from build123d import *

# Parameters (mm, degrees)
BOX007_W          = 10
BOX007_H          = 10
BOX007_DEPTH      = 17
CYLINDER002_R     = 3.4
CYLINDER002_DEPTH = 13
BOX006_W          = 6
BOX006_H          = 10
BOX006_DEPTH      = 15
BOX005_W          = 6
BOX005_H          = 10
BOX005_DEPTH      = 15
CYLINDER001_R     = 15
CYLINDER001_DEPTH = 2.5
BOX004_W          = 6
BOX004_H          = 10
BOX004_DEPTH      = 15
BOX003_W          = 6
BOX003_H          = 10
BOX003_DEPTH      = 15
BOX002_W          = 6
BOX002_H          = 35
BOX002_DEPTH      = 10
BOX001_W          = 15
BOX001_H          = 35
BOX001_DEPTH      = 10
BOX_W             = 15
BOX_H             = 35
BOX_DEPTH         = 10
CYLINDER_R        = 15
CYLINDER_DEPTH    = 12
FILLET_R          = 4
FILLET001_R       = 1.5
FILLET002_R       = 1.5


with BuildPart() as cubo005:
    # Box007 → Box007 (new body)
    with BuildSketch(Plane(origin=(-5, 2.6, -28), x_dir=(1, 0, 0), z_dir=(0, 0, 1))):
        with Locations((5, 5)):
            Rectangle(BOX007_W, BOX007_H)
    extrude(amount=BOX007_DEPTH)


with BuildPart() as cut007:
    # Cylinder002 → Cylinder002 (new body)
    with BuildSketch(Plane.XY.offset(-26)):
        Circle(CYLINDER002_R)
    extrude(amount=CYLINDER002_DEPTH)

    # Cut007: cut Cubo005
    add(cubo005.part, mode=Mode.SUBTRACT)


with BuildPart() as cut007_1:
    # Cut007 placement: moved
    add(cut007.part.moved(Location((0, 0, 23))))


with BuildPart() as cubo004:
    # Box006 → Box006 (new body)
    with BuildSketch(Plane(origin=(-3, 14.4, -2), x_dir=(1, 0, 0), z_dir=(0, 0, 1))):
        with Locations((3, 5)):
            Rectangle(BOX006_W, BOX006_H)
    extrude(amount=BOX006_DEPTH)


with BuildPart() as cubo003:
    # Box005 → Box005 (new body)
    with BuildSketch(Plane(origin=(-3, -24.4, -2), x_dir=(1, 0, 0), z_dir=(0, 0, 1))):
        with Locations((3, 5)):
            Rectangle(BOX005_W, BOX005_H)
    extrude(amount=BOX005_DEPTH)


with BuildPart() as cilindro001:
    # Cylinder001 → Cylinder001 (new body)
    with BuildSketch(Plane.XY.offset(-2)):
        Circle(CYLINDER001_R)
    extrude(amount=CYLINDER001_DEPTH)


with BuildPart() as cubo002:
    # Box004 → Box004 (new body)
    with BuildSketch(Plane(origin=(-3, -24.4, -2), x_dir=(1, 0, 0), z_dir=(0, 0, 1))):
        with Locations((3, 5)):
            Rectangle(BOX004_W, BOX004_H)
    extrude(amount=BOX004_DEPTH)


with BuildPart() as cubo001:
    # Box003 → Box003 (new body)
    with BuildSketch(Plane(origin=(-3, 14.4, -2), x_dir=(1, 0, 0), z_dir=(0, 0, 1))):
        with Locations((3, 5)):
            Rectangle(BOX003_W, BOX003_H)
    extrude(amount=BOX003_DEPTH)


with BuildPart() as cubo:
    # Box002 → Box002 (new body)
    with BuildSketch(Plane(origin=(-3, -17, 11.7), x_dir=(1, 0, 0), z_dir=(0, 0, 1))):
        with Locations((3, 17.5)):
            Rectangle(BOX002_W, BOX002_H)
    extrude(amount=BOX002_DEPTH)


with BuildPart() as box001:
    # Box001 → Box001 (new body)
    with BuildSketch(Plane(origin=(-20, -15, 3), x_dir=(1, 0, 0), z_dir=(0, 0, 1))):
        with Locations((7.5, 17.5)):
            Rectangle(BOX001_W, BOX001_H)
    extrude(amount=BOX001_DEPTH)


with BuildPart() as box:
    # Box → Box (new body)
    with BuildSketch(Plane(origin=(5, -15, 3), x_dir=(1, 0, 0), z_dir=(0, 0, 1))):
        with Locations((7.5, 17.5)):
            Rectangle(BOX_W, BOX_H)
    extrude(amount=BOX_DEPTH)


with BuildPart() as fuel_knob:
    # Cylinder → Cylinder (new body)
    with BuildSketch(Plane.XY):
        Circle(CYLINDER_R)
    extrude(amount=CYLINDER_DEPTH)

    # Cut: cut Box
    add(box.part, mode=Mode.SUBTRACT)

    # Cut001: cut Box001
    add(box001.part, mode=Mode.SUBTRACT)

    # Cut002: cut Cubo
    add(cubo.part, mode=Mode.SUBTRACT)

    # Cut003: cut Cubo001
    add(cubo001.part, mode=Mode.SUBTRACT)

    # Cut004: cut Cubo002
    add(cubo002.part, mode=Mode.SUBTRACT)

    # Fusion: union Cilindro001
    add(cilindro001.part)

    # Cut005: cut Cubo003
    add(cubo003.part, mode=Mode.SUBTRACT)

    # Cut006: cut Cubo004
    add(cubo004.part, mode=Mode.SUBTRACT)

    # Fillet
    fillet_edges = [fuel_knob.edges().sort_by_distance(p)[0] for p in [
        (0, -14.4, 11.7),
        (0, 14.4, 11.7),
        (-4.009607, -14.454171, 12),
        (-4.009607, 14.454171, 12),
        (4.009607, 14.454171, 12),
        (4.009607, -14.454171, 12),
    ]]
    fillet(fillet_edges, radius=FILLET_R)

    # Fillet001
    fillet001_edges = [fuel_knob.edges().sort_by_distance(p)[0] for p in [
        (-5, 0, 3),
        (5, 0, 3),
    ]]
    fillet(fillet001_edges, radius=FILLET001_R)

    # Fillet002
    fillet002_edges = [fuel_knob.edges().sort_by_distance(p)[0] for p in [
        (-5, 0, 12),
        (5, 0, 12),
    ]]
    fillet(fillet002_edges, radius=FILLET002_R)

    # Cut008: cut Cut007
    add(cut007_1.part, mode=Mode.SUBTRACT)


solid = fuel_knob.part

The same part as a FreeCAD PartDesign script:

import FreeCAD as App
import Part
import Sketcher


def edges_at(feature, points):
    """Names of the edges that pass closest to the given points."""
    edges = feature.Shape.Edges
    near = lambda p: min(range(len(edges)), key=lambda i: edges[i].distToShape(Part.Vertex(*p))[0])
    return sorted({f"Edge{near(p) + 1}" for p in points})


def add_polygon(sketch, points):
    """Adds a closed chain of lines whose ends are joined by coincident constraints."""
    first, n = sketch.GeometryCount, len(points)
    for a, b in zip(points, points[1:] + points[:1]):
        sketch.addGeometry(Part.LineSegment(App.Vector(*a, 0), App.Vector(*b, 0)), False)
    for i in range(n):
        sketch.addConstraint(Sketcher.Constraint("Coincident", first + i, 2, first + (i + 1) % n, 1))

doc = App.newDocument("Part")
body = doc.addObject("PartDesign::Body", "Body")

sketch1 = body.newObject("Sketcher::SketchObject", "Sketch")
sketch1.AttachmentSupport = (doc.getObject("XY_Plane"), [""])
sketch1.MapMode = "FlatFace"
sketch1.AttachmentOffset = App.Placement(App.Vector(0, 0, -28), App.Rotation())
add_polygon(sketch1, [(-5, 13), (-5, 3), (5, 3), (5, 13)])
sketch1.addConstraint([
    Sketcher.Constraint("Vertical", 0),
    Sketcher.Constraint("Horizontal", 1),
    Sketcher.Constraint("Vertical", 2),
    Sketcher.Constraint("Horizontal", 3),
    Sketcher.Constraint("Equal", 3, 0),
    Sketcher.Constraint("DistanceX", 1, 1, 1, 2, 10.0),
    Sketcher.Constraint("DistanceX", 0, 2, -1, 1, 5.0),
    Sketcher.Constraint("DistanceY", -1, 1, 0, 2, 2.6),
])
pad1 = body.newObject("PartDesign::Pad", "Pad")
pad1.Profile = sketch1
pad1.Length = 17
body2 = doc.addObject("PartDesign::Body", "Body001")

sketch2 = body2.newObject("Sketcher::SketchObject", "Sketch001")
sketch2.AttachmentSupport = (doc.getObject("XY_Plane001"), [""])
sketch2.MapMode = "FlatFace"
sketch2.AttachmentOffset = App.Placement(App.Vector(0, 0, -26), App.Rotation())
sketch2.addGeometry(Part.Circle(App.Vector(0, 0, 0), App.Vector(0, 0, 1), 3.4), False)
sketch2.addConstraint([
    Sketcher.Constraint("Coincident", 0, 3, -1, 1),
    Sketcher.Constraint("Diameter", 0, 6.8),
])
pad2 = body2.newObject("PartDesign::Pad", "Pad001")
pad2.Profile = sketch2
pad2.Length = 13
doc.recompute()

boolean = body2.newObject("PartDesign::Boolean", "Boolean")
boolean.Type = "Cut"
boolean.addObjects([body])
body3 = doc.addObject("PartDesign::Body", "Body002")
doc.recompute()

body2.Placement = App.Placement(App.Vector(0, 0, 23), App.Rotation(App.Vector(0, 0, 1), 0))
boolean2 = body3.newObject("PartDesign::Boolean", "Boolean001")
boolean2.Type = "Fuse"
boolean2.addObjects([body2])
body4 = doc.addObject("PartDesign::Body", "Body003")

sketch3 = body4.newObject("Sketcher::SketchObject", "Sketch002")
sketch3.AttachmentSupport = (doc.getObject("XY_Plane003"), [""])
sketch3.MapMode = "FlatFace"
sketch3.AttachmentOffset = App.Placement(App.Vector(0, 0, -2), App.Rotation())
add_polygon(sketch3, [(-3, 24), (-3, 14), (3, 14), (3, 24)])
sketch3.addConstraint([
    Sketcher.Constraint("Vertical", 0),
    Sketcher.Constraint("Horizontal", 1),
    Sketcher.Constraint("Vertical", 2),
    Sketcher.Constraint("Horizontal", 3),
    Sketcher.Constraint("DistanceX", 1, 1, 1, 2, 6.0),
    Sketcher.Constraint("DistanceY", 0, 2, 0, 1, 10.0),
    Sketcher.Constraint("DistanceX", 0, 2, -1, 1, 3.0),
    Sketcher.Constraint("DistanceY", -1, 1, 0, 2, 14.4),
])
pad3 = body4.newObject("PartDesign::Pad", "Pad002")
pad3.Profile = sketch3
pad3.Length = 15
body5 = doc.addObject("PartDesign::Body", "Body004")

sketch4 = body5.newObject("Sketcher::SketchObject", "Sketch003")
sketch4.AttachmentSupport = (doc.getObject("XY_Plane004"), [""])
sketch4.MapMode = "FlatFace"
sketch4.AttachmentOffset = App.Placement(App.Vector(0, 0, -2), App.Rotation())
add_polygon(sketch4, [(-3, -14), (-3, -24), (3, -24), (3, -14)])
sketch4.addConstraint([
    Sketcher.Constraint("Vertical", 0),
    Sketcher.Constraint("Horizontal", 1),
    Sketcher.Constraint("Vertical", 2),
    Sketcher.Constraint("Horizontal", 3),
    Sketcher.Constraint("DistanceX", 1, 1, 1, 2, 6.0),
    Sketcher.Constraint("DistanceY", 0, 2, 0, 1, 10.0),
    Sketcher.Constraint("DistanceX", 0, 2, -1, 1, 3.0),
    Sketcher.Constraint("DistanceY", 0, 2, -1, 1, 24.4),
])
pad4 = body5.newObject("PartDesign::Pad", "Pad003")
pad4.Profile = sketch4
pad4.Length = 15
body6 = doc.addObject("PartDesign::Body", "Body005")

sketch5 = body6.newObject("Sketcher::SketchObject", "Sketch004")
sketch5.AttachmentSupport = (doc.getObject("XY_Plane005"), [""])
sketch5.MapMode = "FlatFace"
sketch5.AttachmentOffset = App.Placement(App.Vector(0, 0, -2), App.Rotation())
sketch5.addGeometry(Part.Circle(App.Vector(0, 0, 0), App.Vector(0, 0, 1), 15), False)
sketch5.addConstraint([
    Sketcher.Constraint("Coincident", 0, 3, -1, 1),
    Sketcher.Constraint("Diameter", 0, 30.0),
])
pad5 = body6.newObject("PartDesign::Pad", "Pad004")
pad5.Profile = sketch5
pad5.Length = 2.5
body7 = doc.addObject("PartDesign::Body", "Body006")

sketch6 = body7.newObject("Sketcher::SketchObject", "Sketch005")
sketch6.AttachmentSupport = (doc.getObject("XY_Plane006"), [""])
sketch6.MapMode = "FlatFace"
sketch6.AttachmentOffset = App.Placement(App.Vector(0, 0, -2), App.Rotation())
add_polygon(sketch6, [(-3, -14), (-3, -24), (3, -24), (3, -14)])
sketch6.addConstraint([
    Sketcher.Constraint("Vertical", 0),
    Sketcher.Constraint("Horizontal", 1),
    Sketcher.Constraint("Vertical", 2),
    Sketcher.Constraint("Horizontal", 3),
    Sketcher.Constraint("DistanceX", 1, 1, 1, 2, 6.0),
    Sketcher.Constraint("DistanceY", 0, 2, 0, 1, 10.0),
    Sketcher.Constraint("DistanceX", 0, 2, -1, 1, 3.0),
    Sketcher.Constraint("DistanceY", 0, 2, -1, 1, 24.4),
])
pad6 = body7.newObject("PartDesign::Pad", "Pad005")
pad6.Profile = sketch6
pad6.Length = 15
body8 = doc.addObject("PartDesign::Body", "Body007")

sketch7 = body8.newObject("Sketcher::SketchObject", "Sketch006")
sketch7.AttachmentSupport = (doc.getObject("XY_Plane007"), [""])
sketch7.MapMode = "FlatFace"
sketch7.AttachmentOffset = App.Placement(App.Vector(0, 0, -2), App.Rotation())
add_polygon(sketch7, [(-3, 24), (-3, 14), (3, 14), (3, 24)])
sketch7.addConstraint([
    Sketcher.Constraint("Vertical", 0),
    Sketcher.Constraint("Horizontal", 1),
    Sketcher.Constraint("Vertical", 2),
    Sketcher.Constraint("Horizontal", 3),
    Sketcher.Constraint("DistanceX", 1, 1, 1, 2, 6.0),
    Sketcher.Constraint("DistanceY", 0, 2, 0, 1, 10.0),
    Sketcher.Constraint("DistanceX", 0, 2, -1, 1, 3.0),
    Sketcher.Constraint("DistanceY", -1, 1, 0, 2, 14.4),
])
pad7 = body8.newObject("PartDesign::Pad", "Pad006")
pad7.Profile = sketch7
pad7.Length = 15
body9 = doc.addObject("PartDesign::Body", "Body008")

sketch8 = body9.newObject("Sketcher::SketchObject", "Sketch007")
sketch8.AttachmentSupport = (doc.getObject("XY_Plane008"), [""])
sketch8.MapMode = "FlatFace"
sketch8.AttachmentOffset = App.Placement(App.Vector(0, 0, 11.7), App.Rotation())
add_polygon(sketch8, [(-3, 18), (-3, -17), (3, -17), (3, 18)])
sketch8.addConstraint([
    Sketcher.Constraint("Vertical", 0),
    Sketcher.Constraint("Horizontal", 1),
    Sketcher.Constraint("Vertical", 2),
    Sketcher.Constraint("Horizontal", 3),
    Sketcher.Constraint("DistanceX", 1, 1, 1, 2, 6.0),
    Sketcher.Constraint("DistanceY", 0, 2, 0, 1, 35.0),
    Sketcher.Constraint("DistanceX", 0, 2, -1, 1, 3.0),
    Sketcher.Constraint("DistanceY", 0, 2, -1, 1, 17.0),
])
pad8 = body9.newObject("PartDesign::Pad", "Pad007")
pad8.Profile = sketch8
pad8.Length = 10
body10 = doc.addObject("PartDesign::Body", "Body009")

sketch9 = body10.newObject("Sketcher::SketchObject", "Sketch008")
sketch9.AttachmentSupport = (doc.getObject("XY_Plane009"), [""])
sketch9.MapMode = "FlatFace"
sketch9.AttachmentOffset = App.Placement(App.Vector(0, 0, 3), App.Rotation())
add_polygon(sketch9, [(-20, 20), (-20, -15), (-5, -15), (-5, 20)])
sketch9.addConstraint([
    Sketcher.Constraint("Vertical", 0),
    Sketcher.Constraint("Horizontal", 1),
    Sketcher.Constraint("Vertical", 2),
    Sketcher.Constraint("Horizontal", 3),
    Sketcher.Constraint("DistanceX", 1, 1, 1, 2, 15.0),
    Sketcher.Constraint("DistanceY", 0, 2, 0, 1, 35.0),
    Sketcher.Constraint("DistanceX", 0, 2, -1, 1, 20.0),
    Sketcher.Constraint("DistanceY", 0, 2, -1, 1, 15.0),
])
pad9 = body10.newObject("PartDesign::Pad", "Pad008")
pad9.Profile = sketch9
pad9.Length = 10
body11 = doc.addObject("PartDesign::Body", "Body010")

sketch10 = body11.newObject("Sketcher::SketchObject", "Sketch009")
sketch10.AttachmentSupport = (doc.getObject("XY_Plane010"), [""])
sketch10.MapMode = "FlatFace"
sketch10.AttachmentOffset = App.Placement(App.Vector(0, 0, 3), App.Rotation())
add_polygon(sketch10, [(5, 20), (5, -15), (20, -15), (20, 20)])
sketch10.addConstraint([
    Sketcher.Constraint("Vertical", 0),
    Sketcher.Constraint("Horizontal", 1),
    Sketcher.Constraint("Vertical", 2),
    Sketcher.Constraint("Horizontal", 3),
    Sketcher.Constraint("DistanceX", 1, 1, 1, 2, 15.0),
    Sketcher.Constraint("DistanceY", 0, 2, 0, 1, 35.0),
    Sketcher.Constraint("DistanceX", -1, 1, 0, 2, 5.0),
    Sketcher.Constraint("DistanceY", 0, 2, -1, 1, 15.0),
])
pad10 = body11.newObject("PartDesign::Pad", "Pad009")
pad10.Profile = sketch10
pad10.Length = 10
body12 = doc.addObject("PartDesign::Body", "Body011")

sketch11 = body12.newObject("Sketcher::SketchObject", "Sketch010")
sketch11.AttachmentSupport = (doc.getObject("XY_Plane011"), [""])
sketch11.MapMode = "FlatFace"
sketch11.addGeometry(Part.Circle(App.Vector(0, 0, 0), App.Vector(0, 0, 1), 15), False)
sketch11.addConstraint([
    Sketcher.Constraint("Coincident", 0, 3, -1, 1),
    Sketcher.Constraint("Diameter", 0, 30.0),
])
pad11 = body12.newObject("PartDesign::Pad", "Pad010")
pad11.Profile = sketch11
pad11.Length = 12
doc.recompute()

boolean3 = body12.newObject("PartDesign::Boolean", "Boolean002")
boolean3.Type = "Cut"
boolean3.addObjects([body11])
doc.recompute()

boolean4 = body12.newObject("PartDesign::Boolean", "Boolean003")
boolean4.Type = "Cut"
boolean4.addObjects([body10])
doc.recompute()

boolean5 = body12.newObject("PartDesign::Boolean", "Boolean004")
boolean5.Type = "Cut"
boolean5.addObjects([body9])
doc.recompute()

boolean6 = body12.newObject("PartDesign::Boolean", "Boolean005")
boolean6.Type = "Cut"
boolean6.addObjects([body8])
doc.recompute()

boolean7 = body12.newObject("PartDesign::Boolean", "Boolean006")
boolean7.Type = "Cut"
boolean7.addObjects([body7])
doc.recompute()

boolean8 = body12.newObject("PartDesign::Boolean", "Boolean007")
boolean8.Type = "Fuse"
boolean8.addObjects([body6])
doc.recompute()

boolean9 = body12.newObject("PartDesign::Boolean", "Boolean008")
boolean9.Type = "Cut"
boolean9.addObjects([body5])
doc.recompute()

boolean10 = body12.newObject("PartDesign::Boolean", "Boolean009")
boolean10.Type = "Cut"
boolean10.addObjects([body4])
doc.recompute()

fillet = body12.newObject("PartDesign::Fillet", "Fillet")
fillet.Base = (boolean10, edges_at(boolean10, [
    (0, -14.4, 11.7),
    (0, 14.4, 11.7),
    (-4.01, -14.454, 12),
    (-4.01, 14.454, 12),
    (4.01, 14.454, 12),
    (4.01, -14.454, 12),
]))
fillet.Radius = 4
doc.recompute()

fillet2 = body12.newObject("PartDesign::Fillet", "Fillet001")
fillet2.Base = (fillet, edges_at(fillet, [(-5, 0, 3), (5, 0, 3)]))
fillet2.Radius = 1.5
doc.recompute()

fillet3 = body12.newObject("PartDesign::Fillet", "Fillet002")
fillet3.Base = (fillet2, edges_at(fillet2, [(-5, 0, 12), (5, 0, 12)]))
fillet3.Radius = 1.5
doc.recompute()

boolean11 = body12.newObject("PartDesign::Boolean", "Boolean010")
boolean11.Type = "Cut"
boolean11.addObjects([body3])

doc.recompute()
